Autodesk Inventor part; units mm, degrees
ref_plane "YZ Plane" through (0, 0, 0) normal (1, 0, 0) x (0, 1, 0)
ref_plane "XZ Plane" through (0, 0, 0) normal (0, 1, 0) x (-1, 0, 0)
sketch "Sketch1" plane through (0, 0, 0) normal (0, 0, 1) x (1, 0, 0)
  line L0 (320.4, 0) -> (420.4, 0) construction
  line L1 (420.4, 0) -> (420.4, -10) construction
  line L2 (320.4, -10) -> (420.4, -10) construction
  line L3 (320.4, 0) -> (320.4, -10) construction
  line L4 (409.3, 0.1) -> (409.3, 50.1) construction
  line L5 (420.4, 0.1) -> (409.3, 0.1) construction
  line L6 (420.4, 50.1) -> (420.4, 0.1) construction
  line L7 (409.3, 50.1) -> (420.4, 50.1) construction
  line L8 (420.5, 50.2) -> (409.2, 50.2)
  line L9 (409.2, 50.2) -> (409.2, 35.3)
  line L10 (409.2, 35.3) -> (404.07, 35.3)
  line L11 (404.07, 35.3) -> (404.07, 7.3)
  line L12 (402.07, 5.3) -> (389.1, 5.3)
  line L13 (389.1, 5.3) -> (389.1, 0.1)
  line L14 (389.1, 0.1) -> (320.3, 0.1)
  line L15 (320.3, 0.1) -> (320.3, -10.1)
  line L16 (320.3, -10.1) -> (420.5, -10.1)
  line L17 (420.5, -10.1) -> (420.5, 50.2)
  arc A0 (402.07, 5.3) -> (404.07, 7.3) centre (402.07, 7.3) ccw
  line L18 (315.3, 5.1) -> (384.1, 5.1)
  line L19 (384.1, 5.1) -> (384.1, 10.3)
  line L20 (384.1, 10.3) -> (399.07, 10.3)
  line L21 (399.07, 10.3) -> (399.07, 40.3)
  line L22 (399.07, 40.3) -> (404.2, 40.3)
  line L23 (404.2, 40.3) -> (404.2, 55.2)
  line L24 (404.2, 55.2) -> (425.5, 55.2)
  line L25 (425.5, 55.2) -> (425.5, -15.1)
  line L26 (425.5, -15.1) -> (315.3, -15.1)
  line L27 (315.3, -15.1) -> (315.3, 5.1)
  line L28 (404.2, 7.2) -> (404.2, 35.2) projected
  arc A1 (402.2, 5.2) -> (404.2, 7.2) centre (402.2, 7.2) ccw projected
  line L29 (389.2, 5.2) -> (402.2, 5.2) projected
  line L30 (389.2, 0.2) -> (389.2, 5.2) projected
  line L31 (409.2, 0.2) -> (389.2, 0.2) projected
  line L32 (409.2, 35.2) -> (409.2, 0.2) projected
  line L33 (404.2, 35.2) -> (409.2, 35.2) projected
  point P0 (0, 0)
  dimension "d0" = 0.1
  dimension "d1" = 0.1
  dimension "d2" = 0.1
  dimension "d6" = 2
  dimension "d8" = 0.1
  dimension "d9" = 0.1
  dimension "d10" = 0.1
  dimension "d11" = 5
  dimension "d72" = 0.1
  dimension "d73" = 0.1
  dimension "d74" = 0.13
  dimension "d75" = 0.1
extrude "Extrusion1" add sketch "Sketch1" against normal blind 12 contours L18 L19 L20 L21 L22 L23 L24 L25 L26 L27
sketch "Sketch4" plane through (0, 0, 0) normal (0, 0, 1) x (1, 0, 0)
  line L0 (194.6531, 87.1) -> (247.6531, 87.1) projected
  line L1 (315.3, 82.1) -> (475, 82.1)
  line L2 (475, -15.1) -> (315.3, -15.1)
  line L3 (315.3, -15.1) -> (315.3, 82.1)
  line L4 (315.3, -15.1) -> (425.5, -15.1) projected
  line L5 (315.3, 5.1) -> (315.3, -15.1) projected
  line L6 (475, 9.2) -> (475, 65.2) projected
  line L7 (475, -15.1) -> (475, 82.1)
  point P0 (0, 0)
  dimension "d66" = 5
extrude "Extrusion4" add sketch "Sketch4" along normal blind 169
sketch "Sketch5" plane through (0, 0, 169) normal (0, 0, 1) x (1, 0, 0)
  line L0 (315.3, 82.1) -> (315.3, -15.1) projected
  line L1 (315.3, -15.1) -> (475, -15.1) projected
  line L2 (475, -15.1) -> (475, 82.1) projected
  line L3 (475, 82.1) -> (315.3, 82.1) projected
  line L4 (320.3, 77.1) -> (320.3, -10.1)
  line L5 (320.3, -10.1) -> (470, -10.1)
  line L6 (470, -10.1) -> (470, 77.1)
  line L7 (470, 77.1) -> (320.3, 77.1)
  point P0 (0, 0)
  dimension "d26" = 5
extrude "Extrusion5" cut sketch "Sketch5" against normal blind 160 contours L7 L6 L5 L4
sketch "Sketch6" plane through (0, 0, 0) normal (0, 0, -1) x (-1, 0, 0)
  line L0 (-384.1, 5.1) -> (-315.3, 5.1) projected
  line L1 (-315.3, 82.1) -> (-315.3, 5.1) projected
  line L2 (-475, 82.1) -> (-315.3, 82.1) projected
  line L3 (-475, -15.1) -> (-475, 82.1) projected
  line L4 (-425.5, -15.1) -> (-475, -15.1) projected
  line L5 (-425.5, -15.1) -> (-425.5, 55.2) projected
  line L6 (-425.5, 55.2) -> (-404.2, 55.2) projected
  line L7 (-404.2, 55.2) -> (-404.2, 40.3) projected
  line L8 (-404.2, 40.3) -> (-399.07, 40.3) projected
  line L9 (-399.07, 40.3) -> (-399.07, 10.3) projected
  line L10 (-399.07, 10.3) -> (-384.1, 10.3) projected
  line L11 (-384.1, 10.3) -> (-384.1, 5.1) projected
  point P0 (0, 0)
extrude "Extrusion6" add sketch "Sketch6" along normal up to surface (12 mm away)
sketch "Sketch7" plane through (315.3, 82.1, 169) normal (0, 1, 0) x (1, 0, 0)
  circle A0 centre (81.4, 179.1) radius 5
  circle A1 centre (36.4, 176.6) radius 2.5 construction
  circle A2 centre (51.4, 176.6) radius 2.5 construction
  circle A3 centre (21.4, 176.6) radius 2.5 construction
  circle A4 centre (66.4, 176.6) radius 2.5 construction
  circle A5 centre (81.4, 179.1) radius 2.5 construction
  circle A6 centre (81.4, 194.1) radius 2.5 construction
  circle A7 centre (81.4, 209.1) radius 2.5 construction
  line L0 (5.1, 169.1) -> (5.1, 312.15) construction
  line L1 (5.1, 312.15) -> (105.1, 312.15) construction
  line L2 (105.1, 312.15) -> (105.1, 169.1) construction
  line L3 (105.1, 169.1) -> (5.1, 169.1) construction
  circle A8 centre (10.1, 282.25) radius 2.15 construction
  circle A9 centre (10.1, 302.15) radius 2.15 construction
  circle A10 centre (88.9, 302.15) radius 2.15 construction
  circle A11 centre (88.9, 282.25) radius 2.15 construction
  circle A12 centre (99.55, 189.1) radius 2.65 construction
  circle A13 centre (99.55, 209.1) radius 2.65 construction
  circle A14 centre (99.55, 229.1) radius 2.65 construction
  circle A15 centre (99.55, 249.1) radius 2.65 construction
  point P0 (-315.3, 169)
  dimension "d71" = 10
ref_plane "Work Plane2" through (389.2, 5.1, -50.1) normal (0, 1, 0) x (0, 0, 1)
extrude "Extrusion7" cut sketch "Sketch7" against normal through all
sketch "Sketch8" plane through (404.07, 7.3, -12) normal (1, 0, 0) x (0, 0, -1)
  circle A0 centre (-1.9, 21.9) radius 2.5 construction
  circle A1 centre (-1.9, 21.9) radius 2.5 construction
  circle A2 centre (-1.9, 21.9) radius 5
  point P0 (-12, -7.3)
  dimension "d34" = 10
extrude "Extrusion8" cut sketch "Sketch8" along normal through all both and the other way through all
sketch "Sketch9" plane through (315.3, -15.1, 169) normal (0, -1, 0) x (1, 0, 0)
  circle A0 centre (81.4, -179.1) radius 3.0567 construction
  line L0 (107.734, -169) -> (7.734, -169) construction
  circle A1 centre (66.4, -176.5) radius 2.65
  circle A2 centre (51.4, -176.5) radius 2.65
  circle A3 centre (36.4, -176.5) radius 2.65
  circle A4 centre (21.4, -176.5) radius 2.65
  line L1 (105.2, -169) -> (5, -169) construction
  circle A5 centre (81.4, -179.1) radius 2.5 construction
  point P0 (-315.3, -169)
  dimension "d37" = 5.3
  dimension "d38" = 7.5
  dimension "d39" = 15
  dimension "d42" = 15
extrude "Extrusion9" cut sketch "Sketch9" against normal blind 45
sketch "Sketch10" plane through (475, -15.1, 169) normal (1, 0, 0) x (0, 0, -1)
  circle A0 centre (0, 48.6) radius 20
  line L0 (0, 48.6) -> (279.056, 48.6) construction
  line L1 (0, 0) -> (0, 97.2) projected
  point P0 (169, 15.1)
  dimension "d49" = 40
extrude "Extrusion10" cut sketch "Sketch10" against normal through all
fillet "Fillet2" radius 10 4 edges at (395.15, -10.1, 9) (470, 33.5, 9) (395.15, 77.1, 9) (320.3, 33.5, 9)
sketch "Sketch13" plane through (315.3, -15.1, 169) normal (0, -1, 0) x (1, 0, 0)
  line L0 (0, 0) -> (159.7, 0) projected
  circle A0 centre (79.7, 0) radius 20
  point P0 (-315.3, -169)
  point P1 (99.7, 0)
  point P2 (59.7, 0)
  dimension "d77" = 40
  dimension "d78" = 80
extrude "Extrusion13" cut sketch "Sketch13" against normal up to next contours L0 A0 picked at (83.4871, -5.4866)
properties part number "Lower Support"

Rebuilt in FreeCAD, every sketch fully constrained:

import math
import FreeCAD as App
import Part
import Sketcher
from FreeCAD import Vector
Q = App.Units.Quantity


def edges_at(feature, points):
    """Names of the edges that pass closest to the given points."""
    edges = feature.Shape.Edges
    near = lambda p: min(range(len(edges)), key=lambda i: edges[i].distToShape(Part.Vertex(*p))[0])
    return sorted({f"Edge{near(p) + 1}" for p in points})


def add_polygon(sketch, points):
    """Adds a closed chain of lines whose ends are joined by coincident constraints."""
    first, n = sketch.GeometryCount, len(points)
    for a, b in zip(points, points[1:] + points[:1]):
        sketch.addGeometry(Part.LineSegment(App.Vector(*a, 0), App.Vector(*b, 0)), False)
    for i in range(n):
        sketch.addConstraint(Sketcher.Constraint("Coincident", first + i, 2, first + (i + 1) % n, 1))

doc = App.newDocument("Part")
body = doc.addObject("PartDesign::Body", "Body")

sketch1 = body.newObject("Sketcher::SketchObject", "Sketch")
sketch1.AttachmentSupport = (doc.getObject("XY_Plane"), [""])
sketch1.MapMode = "FlatFace"
add_polygon(sketch1, [(384.1, 5.1), (315.3, 5.1), (315.3, -15.1), (425.5, -15.1), (425.5, 55.2), (404.2, 55.2), (404.2, 40.3), (399.1, 40.3), (399.1, 10.3), (384.1, 10.3)])
sketch1.addGeometry(Part.LineSegment(Vector(409.2, 50.2, 0), Vector(420.5, 50.2, 0)), False)
sketch1.addGeometry(Part.LineSegment(Vector(420.5, 50.2, 0), Vector(420.5, -10.1, 0)), False)
sketch1.addGeometry(Part.LineSegment(Vector(420.5, -10.1, 0), Vector(320.3, -10.1, 0)), False)
sketch1.addGeometry(Part.LineSegment(Vector(320.3, -10.1, 0), Vector(320.3, 0.1, 0)), False)
sketch1.addGeometry(Part.LineSegment(Vector(320.3, 0.1, 0), Vector(389.1, 0.1, 0)), False)
sketch1.addGeometry(Part.LineSegment(Vector(389.1, 0.1, 0), Vector(389.1, 5.3, 0)), False)
sketch1.addGeometry(Part.LineSegment(Vector(389.1, 5.3, 0), Vector(402.1, 5.3, 0)), False)
sketch1.addGeometry(Part.ArcOfCircle(Part.Circle(Vector(402.1, 7.3, 0), Vector(0, 0, 1), 2), math.radians(-90), math.radians(0)), False)
sketch1.addGeometry(Part.LineSegment(Vector(404.1, 7.3, 0), Vector(404.1, 35.3, 0)), False)
sketch1.addGeometry(Part.LineSegment(Vector(404.1, 35.3, 0), Vector(409.2, 35.3, 0)), False)
sketch1.addGeometry(Part.LineSegment(Vector(409.2, 35.3, 0), Vector(409.2, 50.2, 0)), False)
sketch1.addConstraint([
    Sketcher.Constraint("Coincident", 10, 2, 11, 1),
    Sketcher.Constraint("Coincident", 11, 2, 12, 1),
    Sketcher.Constraint("Coincident", 12, 2, 13, 1),
    Sketcher.Constraint("Coincident", 13, 2, 14, 1),
    Sketcher.Constraint("Coincident", 14, 2, 15, 1),
    Sketcher.Constraint("Coincident", 15, 2, 16, 1),
    Sketcher.Constraint("Tangent", 16, 2, 17, 1),
    Sketcher.Constraint("Tangent", 17, 2, 18, 1),
    Sketcher.Constraint("Coincident", 18, 2, 19, 1),
    Sketcher.Constraint("Coincident", 19, 2, 20, 1),
    Sketcher.Constraint("Coincident", 20, 2, 10, 1),
    Sketcher.Constraint("Horizontal", 0),
    Sketcher.Constraint("Vertical", 1),
    Sketcher.Constraint("Horizontal", 2),
    Sketcher.Constraint("Vertical", 3),
    Sketcher.Constraint("Horizontal", 4),
    Sketcher.Constraint("Vertical", 5),
    Sketcher.Constraint("Horizontal", 6),
    Sketcher.Constraint("Vertical", 7),
    Sketcher.Constraint("Horizontal", 8),
    Sketcher.Constraint("Vertical", 9),
    Sketcher.Constraint("Horizontal", 10),
    Sketcher.Constraint("Vertical", 11),
    Sketcher.Constraint("Horizontal", 12),
    Sketcher.Constraint("Vertical", 13),
    Sketcher.Constraint("Horizontal", 14),
    Sketcher.Constraint("Vertical", 15),
    Sketcher.Constraint("Horizontal", 16),
    Sketcher.Constraint("Vertical", 18),
    Sketcher.Constraint("Horizontal", 19),
    Sketcher.Constraint("Vertical", 20),
    Sketcher.Constraint("Equal", 0, 14),
    Sketcher.Constraint("Equal", 6, 19),
    Sketcher.Constraint("Equal", 9, 15),
    Sketcher.Constraint("Equal", 5, 20),
    Sketcher.Constraint("Radius", 17, Q("2 mm")),
    Sketcher.Constraint("DistanceX", 10, 2, 3, 2, Q("5 mm")),
    Sketcher.Constraint("DistanceY", 10, 2, 3, 2, Q("5 mm")),
    Sketcher.Constraint("DistanceY", 2, 2, 11, 2, Q("5 mm")),
    Sketcher.Constraint("DistanceX", 1, 2, 12, 2, Q("5 mm")),
    Sketcher.Constraint("DistanceY", 13, 2, 0, 2, Q("5 mm")),
    Sketcher.Constraint("DistanceX", 7, 2, 17, 2, Q("5 mm")),
    Sketcher.Constraint("DistanceY", -1, 1, 13, 2, Q("0.1 mm")),
    Sketcher.Constraint("DistanceY", 7, 2, 7, 1, Q("30 mm")),
    Sketcher.Constraint("DistanceX", 18, 2, 5, 2, Q("0.13 mm")),
    Sketcher.Constraint("DistanceX", 0, 2, 0, 1, Q("68.8 mm")),
    Sketcher.Constraint("DistanceX", 2, 1, 2, 2, Q("110.2 mm")),
    Sketcher.Constraint("DistanceX", 4, 2, 4, 1, Q("21.3 mm")),
    Sketcher.Constraint("DistanceY", 1, 2, 1, 1, Q("20.2 mm")),
    Sketcher.Constraint("DistanceY", 3, 1, 3, 2, Q("70.3 mm")),
    Sketcher.Constraint("DistanceY", 5, 2, 5, 1, Q("14.9 mm")),
    Sketcher.Constraint("DistanceX", -1, 1, 0, 2, Q("315.3 mm")),
])
pad1 = body.newObject("PartDesign::Pad", "Pad")
pad1.Profile = sketch1
pad1.Length = 12
pad1.Reversed = True

sketch2 = body.newObject("Sketcher::SketchObject", "Sketch001")
sketch2.AttachmentSupport = (doc.getObject("XY_Plane"), [""])
sketch2.MapMode = "FlatFace"
add_polygon(sketch2, [(475, 82), (315, 82), (315, -15), (475, -15)])
sketch2.addConstraint([
    Sketcher.Constraint("Horizontal", 0),
    Sketcher.Constraint("Vertical", 1),
    Sketcher.Constraint("Horizontal", 2),
    Sketcher.Constraint("Vertical", 3),
    Sketcher.Constraint("DistanceX", 0, 2, 0, 1, Q("159.7 mm")),
    Sketcher.Constraint("DistanceY", 1, 2, 1, 1, Q("97.2 mm")),
    Sketcher.Constraint("DistanceX", -1, 1, 2, 2, Q("475 mm")),
    Sketcher.Constraint("DistanceY", -1, 1, 0, 2, Q("82.1 mm")),
])
pad2 = body.newObject("PartDesign::Pad", "Pad001")
pad2.Profile = sketch2
pad2.Length = 169

sketch3 = body.newObject("Sketcher::SketchObject", "Sketch002")
sketch3.AttachmentSupport = (doc.getObject("XY_Plane"), [""])
sketch3.MapMode = "FlatFace"
sketch3.AttachmentOffset = App.Placement(Vector(0, 0, 169), App.Rotation())
add_polygon(sketch3, [(470, 77), (320, 77), (320, -10), (470, -10)])
sketch3.addConstraint([
    Sketcher.Constraint("Horizontal", 0),
    Sketcher.Constraint("Vertical", 1),
    Sketcher.Constraint("Horizontal", 2),
    Sketcher.Constraint("Vertical", 3),
    Sketcher.Constraint("DistanceX", 0, 2, 0, 1, Q("149.7 mm")),
    Sketcher.Constraint("DistanceY", 1, 2, 1, 1, Q("87.2 mm")),
    Sketcher.Constraint("DistanceX", -1, 1, 2, 2, Q("470 mm")),
    Sketcher.Constraint("DistanceY", -1, 1, 0, 2, Q("77.1 mm")),
])
pocket1 = body.newObject("PartDesign::Pocket", "Pocket")
pocket1.Profile = sketch3
pocket1.Length = 160

sketch4 = body.newObject("Sketcher::SketchObject", "Sketch003")
sketch4.AttachmentSupport = (doc.getObject("XY_Plane"), [""])
sketch4.MapMode = "FlatFace"
add_polygon(sketch4, [(384, 10), (384, 5), (315, 5), (315, 82), (475, 82), (475, -15), (426, -15), (426, 55), (404, 55), (404, 40), (399, 40), (399, 10)])
sketch4.addConstraint([
    Sketcher.Constraint("Vertical", 0),
    Sketcher.Constraint("Horizontal", 1),
    Sketcher.Constraint("Vertical", 2),
    Sketcher.Constraint("Horizontal", 3),
    Sketcher.Constraint("Vertical", 4),
    Sketcher.Constraint("Horizontal", 5),
    Sketcher.Constraint("Vertical", 6),
    Sketcher.Constraint("Horizontal", 7),
    Sketcher.Constraint("Vertical", 8),
    Sketcher.Constraint("Horizontal", 9),
    Sketcher.Constraint("Vertical", 10),
    Sketcher.Constraint("Horizontal", 11),
    Sketcher.Constraint("DistanceY", 2, 1, 2, 2, Q("77 mm")),
    Sketcher.Constraint("DistanceY", 10, 2, 10, 1, Q("30 mm")),
    Sketcher.Constraint("DistanceX", 1, 2, 1, 1, Q("68.8 mm")),
    Sketcher.Constraint("DistanceX", 3, 1, 3, 2, Q("159.7 mm")),
    Sketcher.Constraint("DistanceX", 5, 2, 5, 1, Q("49.5 mm")),
    Sketcher.Constraint("DistanceX", 7, 2, 7, 1, Q("21.3 mm")),
    Sketcher.Constraint("DistanceY", 0, 2, 0, 1, Q("5.2 mm")),
    Sketcher.Constraint("DistanceY", 4, 2, 4, 1, Q("97.2 mm")),
    Sketcher.Constraint("DistanceY", 6, 1, 6, 2, Q("70.3 mm")),
    Sketcher.Constraint("DistanceX", -1, 1, 3, 2, Q("475 mm")),
    Sketcher.Constraint("DistanceX", 9, 2, 9, 1, Q("5.13 mm")),
    Sketcher.Constraint("DistanceY", -1, 1, 0, 2, Q("5.1 mm")),
])
pad3 = body.newObject("PartDesign::Pad", "Pad002")
pad3.Profile = sketch4
pad3.Length = 12
pad3.Reversed = True

sketch5 = body.newObject("Sketcher::SketchObject", "Sketch004")
sketch5.AttachmentSupport = (doc.getObject("XZ_Plane"), [""])
sketch5.MapMode = "FlatFace"
sketch5.AttachmentOffset = App.Placement(Vector(0, 0, -82.1), App.Rotation())
sketch5.addGeometry(Part.Circle(Vector(397, -10, 0), Vector(0, 0, 1), 5), False)
sketch5.addConstraint([
    Sketcher.Constraint("Diameter", 0, Q("10 mm")),
    Sketcher.Constraint("DistanceX", -1, 1, 0, 3, Q("396.7 mm")),
    Sketcher.Constraint("DistanceY", 0, 3, -1, 1, Q("10.1 mm")),
])
pocket2 = body.newObject("PartDesign::Pocket", "Pocket001")
pocket2.Profile = sketch5
pocket2.Type = "ThroughAll"
pocket2.Reversed = True

sketch6 = body.newObject("Sketcher::SketchObject", "Sketch005")
sketch6.AttachmentSupport = (doc.getObject("YZ_Plane"), [""])
sketch6.MapMode = "FlatFace"
sketch6.AttachmentOffset = App.Placement(Vector(0, 0, 404.07), App.Rotation())
sketch6.addGeometry(Part.Circle(Vector(29, -10, 0), Vector(0, 0, 1), 5), False)
sketch6.addConstraint([
    Sketcher.Constraint("Diameter", 0, Q("10 mm")),
    Sketcher.Constraint("DistanceX", -1, 1, 0, 3, Q("29.2 mm")),
    Sketcher.Constraint("DistanceY", 0, 3, -1, 1, Q("10.1 mm")),
])
pocket3 = body.newObject("PartDesign::Pocket", "Pocket002")
pocket3.Profile = sketch6
pocket3.Type = "ThroughAll"
pocket3.Midplane = True

sketch7 = body.newObject("Sketcher::SketchObject", "Sketch006")
sketch7.AttachmentSupport = (doc.getObject("XZ_Plane"), [""])
sketch7.MapMode = "FlatFace"
sketch7.AttachmentOffset = App.Placement(Vector(0, 0, 15.1), App.Rotation())
sketch7.addGeometry([
    Part.Circle(Vector(381.7, -7.5, 0), Vector(0, 0, 1), 2.6),
    Part.Circle(Vector(366.7, -7.5, 0), Vector(0, 0, 1), 2.6),
    Part.Circle(Vector(351.7, -7.5, 0), Vector(0, 0, 1), 2.6),
    Part.Circle(Vector(336.7, -7.5, 0), Vector(0, 0, 1), 2.6),
], False)
sketch7.addConstraint([
    Sketcher.Constraint("Equal", 0, 1),
    Sketcher.Constraint("Equal", 1, 2),
    Sketcher.Constraint("Equal", 2, 3),
    Sketcher.Constraint("Horizontal", 0, 3, 1, 3),
    Sketcher.Constraint("Horizontal", 1, 3, 2, 3),
    Sketcher.Constraint("Horizontal", 2, 3, 3, 3),
    Sketcher.Constraint("Diameter", 0, Q("5.3 mm")),
    Sketcher.Constraint("DistanceX", 1, 3, 0, 3, Q("15 mm")),
    Sketcher.Constraint("DistanceX", 2, 3, 1, 3, Q("15 mm")),
    Sketcher.Constraint("DistanceX", 3, 3, 2, 3, Q("15 mm")),
    Sketcher.Constraint("DistanceY", 0, 3, -1, 1, Q("7.5 mm")),
    Sketcher.Constraint("DistanceX", -1, 1, 0, 3, Q("381.7 mm")),
])
pocket4 = body.newObject("PartDesign::Pocket", "Pocket003")
pocket4.Profile = sketch7
pocket4.Length = 45

sketch8 = body.newObject("Sketcher::SketchObject", "Sketch007")
sketch8.AttachmentSupport = (doc.getObject("YZ_Plane"), [""])
sketch8.MapMode = "FlatFace"
sketch8.AttachmentOffset = App.Placement(Vector(0, 0, 475), App.Rotation())
sketch8.addGeometry(Part.Circle(Vector(34, 169, 0), Vector(0, 0, 1), 20), False)
sketch8.addConstraint([
    Sketcher.Constraint("Diameter", 0, Q("40 mm")),
    Sketcher.Constraint("DistanceY", -1, 1, 0, 3, Q("169 mm")),
    Sketcher.Constraint("DistanceX", -1, 1, 0, 3, Q("33.5 mm")),
])
pocket5 = body.newObject("PartDesign::Pocket", "Pocket004")
pocket5.Profile = sketch8
pocket5.Type = "ThroughAll"
doc.recompute()

fillet = body.newObject("PartDesign::Fillet", "Fillet")
fillet.Base = (pocket5, edges_at(pocket5, [
    (395.15, -10.1, 9),
    (470, 33.5, 9),
    (395.15, 77.1, 9),
    (320.3, 33.5, 9),
]))
fillet.Radius = 10

sketch9 = body.newObject("Sketcher::SketchObject", "Sketch008")
sketch9.AttachmentSupport = (doc.getObject("XZ_Plane"), [""])
sketch9.MapMode = "FlatFace"
sketch9.AttachmentOffset = App.Placement(Vector(0, 0, 15.1), App.Rotation())
sketch9.addGeometry([
    Part.LineSegment(Vector(415, 169, 0), Vector(375, 169, 0)),
    Part.ArcOfCircle(Part.Circle(Vector(395, 169, 0), Vector(0, 0, 1), 20), math.radians(180), math.radians(360)),
], False)
sketch9.addConstraint([
    Sketcher.Constraint("Coincident", 0, 1, 1, 2),
    Sketcher.Constraint("Coincident", 1, 1, 0, 2),
    Sketcher.Constraint("Horizontal", 0),
    Sketcher.Constraint("Horizontal", 1, 3, 0, 1),
    Sketcher.Constraint("Radius", 1, Q("20 mm")),
    Sketcher.Constraint("DistanceX", -1, 1, 1, 3, Q("395 mm")),
    Sketcher.Constraint("DistanceY", -1, 1, 1, 3, Q("169 mm")),
])
pocket6 = body.newObject("PartDesign::Pocket", "Pocket005")
pocket6.Profile = sketch9
pocket6.Type = "UpToFirst"

doc.recompute()
